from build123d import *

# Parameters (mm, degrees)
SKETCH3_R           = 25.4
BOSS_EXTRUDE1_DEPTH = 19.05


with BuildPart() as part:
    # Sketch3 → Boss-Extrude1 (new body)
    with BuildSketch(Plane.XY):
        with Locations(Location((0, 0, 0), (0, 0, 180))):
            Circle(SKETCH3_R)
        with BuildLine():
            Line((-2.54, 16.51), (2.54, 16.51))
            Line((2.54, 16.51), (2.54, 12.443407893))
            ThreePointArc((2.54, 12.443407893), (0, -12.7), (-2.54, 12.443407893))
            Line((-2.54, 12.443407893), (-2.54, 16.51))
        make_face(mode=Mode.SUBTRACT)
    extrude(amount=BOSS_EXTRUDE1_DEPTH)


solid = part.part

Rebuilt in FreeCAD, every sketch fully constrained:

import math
import FreeCAD as App
import Part
import Sketcher
Q = App.Units.Quantity

doc = App.newDocument("Part")
body = doc.addObject("PartDesign::Body", "Body")

sketch1 = body.newObject("Sketcher::SketchObject", "Sketch")
sketch1.AttachmentSupport = (doc.getObject("XY_Plane"), [""])
sketch1.MapMode = "FlatFace"
sketch1.addGeometry(Part.Circle(App.Vector(0, 0, 0), App.Vector(0, 0, 1), 25.4), False)
sketch1.addGeometry(Part.LineSegment(App.Vector(-2.5, 12.4, 0), App.Vector(-2.5, 16.5, 0)), False)
sketch1.addGeometry(Part.LineSegment(App.Vector(-2.5, 16.5, 0), App.Vector(2.5, 16.5, 0)), False)
sketch1.addGeometry(Part.LineSegment(App.Vector(2.5, 16.5, 0), App.Vector(2.5, 12.4, 0)), False)
sketch1.addGeometry(Part.ArcOfCircle(Part.Circle(App.Vector(0, 0, 0), App.Vector(0, 0, 1), 12.7), math.radians(102), math.radians(438)), False)
sketch1.addConstraint(Sketcher.Constraint("Coincident", 1, 2, 2, 1))
sketch1.addConstraint(Sketcher.Constraint("Coincident", 2, 2, 3, 1))
sketch1.addConstraint(Sketcher.Constraint("Coincident", 3, 2, 4, 2))
sketch1.addConstraint(Sketcher.Constraint("Coincident", 4, 1, 1, 1))
sketch1.addConstraint(Sketcher.Constraint("Vertical", 1))
sketch1.addConstraint(Sketcher.Constraint("Horizontal", 2))
sketch1.addConstraint(Sketcher.Constraint("Vertical", 3))
sketch1.addConstraint(Sketcher.Constraint("Coincident", 0, 3, -1, 1))
sketch1.addConstraint(Sketcher.Constraint("Coincident", 4, 3, -1, 1))
sketch1.addConstraint(Sketcher.Constraint("Horizontal", 3, 2, 4, 1))
sketch1.addConstraint(Sketcher.Constraint("Diameter", 0, Q("2 in")))
sketch1.addConstraint(Sketcher.Constraint("Radius", 4, Q("0.5 in")))
sketch1.addConstraint(Sketcher.Constraint("DistanceX", 2, 1, 2, 2, Q("0.2 in")))
sketch1.addConstraint(Sketcher.Constraint("DistanceY", -1, 1, 1, 2, Q("0.65 in")))
pad1 = body.newObject("PartDesign::Pad", "Pad")
pad1.Profile = sketch1
pad1.Length = Q("0.75 in")

doc.recompute()
